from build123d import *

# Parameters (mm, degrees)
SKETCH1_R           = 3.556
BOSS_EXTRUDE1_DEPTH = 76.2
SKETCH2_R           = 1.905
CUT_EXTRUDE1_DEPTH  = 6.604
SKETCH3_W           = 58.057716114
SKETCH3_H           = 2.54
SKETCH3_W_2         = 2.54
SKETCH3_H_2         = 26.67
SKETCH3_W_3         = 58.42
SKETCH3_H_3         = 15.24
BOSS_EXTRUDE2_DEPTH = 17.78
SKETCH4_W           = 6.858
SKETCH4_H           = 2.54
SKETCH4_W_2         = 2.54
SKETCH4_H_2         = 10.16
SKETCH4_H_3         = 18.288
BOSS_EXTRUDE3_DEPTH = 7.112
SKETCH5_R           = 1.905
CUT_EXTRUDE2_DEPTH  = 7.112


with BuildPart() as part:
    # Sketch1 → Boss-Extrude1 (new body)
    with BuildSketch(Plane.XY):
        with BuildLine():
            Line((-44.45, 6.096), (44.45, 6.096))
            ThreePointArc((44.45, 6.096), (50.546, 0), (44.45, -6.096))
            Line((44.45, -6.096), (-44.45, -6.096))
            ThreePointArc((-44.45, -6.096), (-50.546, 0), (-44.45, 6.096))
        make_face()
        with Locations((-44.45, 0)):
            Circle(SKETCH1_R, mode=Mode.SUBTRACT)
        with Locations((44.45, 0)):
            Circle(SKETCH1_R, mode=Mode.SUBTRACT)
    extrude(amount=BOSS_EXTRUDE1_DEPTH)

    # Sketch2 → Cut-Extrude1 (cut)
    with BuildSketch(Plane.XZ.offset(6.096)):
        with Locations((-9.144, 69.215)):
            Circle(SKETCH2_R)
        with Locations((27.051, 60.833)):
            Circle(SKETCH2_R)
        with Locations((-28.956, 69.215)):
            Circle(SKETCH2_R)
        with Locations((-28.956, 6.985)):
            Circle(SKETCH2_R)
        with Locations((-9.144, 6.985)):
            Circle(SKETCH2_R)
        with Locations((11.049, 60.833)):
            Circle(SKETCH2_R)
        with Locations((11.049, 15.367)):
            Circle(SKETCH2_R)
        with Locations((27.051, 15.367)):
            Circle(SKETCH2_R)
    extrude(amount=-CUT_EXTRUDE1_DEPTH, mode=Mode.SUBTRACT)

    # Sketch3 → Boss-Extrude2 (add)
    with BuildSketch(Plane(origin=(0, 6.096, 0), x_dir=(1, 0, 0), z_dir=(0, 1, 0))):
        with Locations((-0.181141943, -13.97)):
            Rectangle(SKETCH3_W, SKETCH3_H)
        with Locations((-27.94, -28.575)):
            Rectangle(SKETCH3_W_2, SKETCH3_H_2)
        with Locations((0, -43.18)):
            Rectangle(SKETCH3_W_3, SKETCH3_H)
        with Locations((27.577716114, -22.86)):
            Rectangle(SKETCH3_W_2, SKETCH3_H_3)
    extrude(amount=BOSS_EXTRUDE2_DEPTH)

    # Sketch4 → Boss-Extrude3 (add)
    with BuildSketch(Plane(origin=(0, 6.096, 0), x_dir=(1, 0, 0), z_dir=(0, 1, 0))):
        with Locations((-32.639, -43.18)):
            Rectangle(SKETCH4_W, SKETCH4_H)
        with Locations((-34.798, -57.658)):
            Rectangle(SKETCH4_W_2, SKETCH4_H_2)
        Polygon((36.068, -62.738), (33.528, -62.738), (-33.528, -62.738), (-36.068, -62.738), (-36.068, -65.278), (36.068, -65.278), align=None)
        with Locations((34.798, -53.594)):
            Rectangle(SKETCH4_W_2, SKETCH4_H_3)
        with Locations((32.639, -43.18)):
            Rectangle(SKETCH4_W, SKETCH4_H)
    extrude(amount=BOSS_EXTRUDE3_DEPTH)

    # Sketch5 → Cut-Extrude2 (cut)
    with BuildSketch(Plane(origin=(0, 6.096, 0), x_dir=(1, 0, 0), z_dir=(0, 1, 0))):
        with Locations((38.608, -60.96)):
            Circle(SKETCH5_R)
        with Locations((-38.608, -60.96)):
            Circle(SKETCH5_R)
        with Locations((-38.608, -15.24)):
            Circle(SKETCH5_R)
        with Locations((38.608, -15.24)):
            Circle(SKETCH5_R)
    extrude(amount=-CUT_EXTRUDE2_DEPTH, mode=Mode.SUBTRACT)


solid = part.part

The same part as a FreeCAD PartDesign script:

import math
import FreeCAD as App
import Part
import Sketcher
from FreeCAD import Vector
Q = App.Units.Quantity


def add_polygon(sketch, points):
    """Adds a closed chain of lines whose ends are joined by coincident constraints."""
    first, n = sketch.GeometryCount, len(points)
    for a, b in zip(points, points[1:] + points[:1]):
        sketch.addGeometry(Part.LineSegment(App.Vector(*a, 0), App.Vector(*b, 0)), False)
    for i in range(n):
        sketch.addConstraint(Sketcher.Constraint("Coincident", first + i, 2, first + (i + 1) % n, 1))

doc = App.newDocument("Part")
params = doc.addObject("Spreadsheet::Sheet", "Params")
for row, (alias, value) in enumerate([
    ("sketch1_diameter", "0.28 in"),
    ("sketch1_radius", "0.24 in"),
    ("sketch1_width", "3.5 in"),
    ("pad1_length", "3 in"),
    ("sketch2_diameter", "0.15 in"),
    ("pocket1_length", "0.26 in"),
    ("sketch3_width", "2.3 in"),
    ("sketch3_width2", "2.2 in"),
    ("sketch3_width3", "0.1 in"),
    ("sketch3_height", "0.6 in"),
    ("sketch3_height2", "0.7 in"),
    ("pad2_length", "0.7 in"),
    ("sketch4_width", "0.1 in"),
    ("sketch4_height", "0.5 in"),
    ("sketch4_height2", "0.4 in"),
    ("sketch4_width2", "0.27 in"),
    ("sketch4_width3", "2.84 in"),
    ("pad3_length", "0.28 in"),
    ("sketch5_diameter", "0.15 in"),
    ("pocket2_length", "0.28 in"),
], start=1):
    params.set(f"A{row}", alias)
    params.set(f"B{row}", "=" + value)
    params.setAlias(f"B{row}", alias)

body = doc.addObject("PartDesign::Body", "Body")

sketch1 = doc.addObject("Sketcher::SketchObject", "Sketch")
body.addObject(sketch1)
sketch1.AttachmentSupport = (doc.XY_Plane, [""])
sketch1.MapMode = "FlatFace"
sketch1.addGeometry(Part.LineSegment(Vector(44.45, 6.096, 0), Vector(-44.45, 6.096, 0)), False)
sketch1.addGeometry(Part.ArcOfCircle(Part.Circle(Vector(-44.45, 0, 0), Vector(0, 0, 1), 6.096), math.radians(90), math.radians(270)), False)
sketch1.addGeometry(Part.LineSegment(Vector(-44.45, -6.096, 0), Vector(44.45, -6.096, 0)), False)
sketch1.addGeometry(Part.ArcOfCircle(Part.Circle(Vector(44.45, 0, 0), Vector(0, 0, 1), 6.096), math.radians(-90), math.radians(90)), False)
sketch1.addGeometry(Part.Circle(Vector(44.45, 0, 0), Vector(0, 0, 1), 3.556), False)
sketch1.addGeometry(Part.Circle(Vector(-44.45, 0, 0), Vector(0, 0, 1), 3.556), False)
sketch1.addConstraint(Sketcher.Constraint("Tangent", 0, 2, 1, 1))
sketch1.addConstraint(Sketcher.Constraint("Tangent", 1, 2, 2, 1))
sketch1.addConstraint(Sketcher.Constraint("Tangent", 2, 2, 3, 1))
sketch1.addConstraint(Sketcher.Constraint("Tangent", 3, 2, 0, 1))
sketch1.addConstraint(Sketcher.Constraint("Horizontal", 0))
sketch1.addConstraint(Sketcher.Constraint("Horizontal", 2))
sketch1.addConstraint(Sketcher.Constraint("Coincident", 4, 3, 3, 3))
sketch1.addConstraint(Sketcher.Constraint("Coincident", 5, 3, 1, 3))
sketch1.addConstraint(Sketcher.Constraint("Equal", 4, 5))
sketch1.addConstraint(Sketcher.Constraint("Symmetric", 1, 3, 3, 3, -1, 1))
sketch1.addConstraint(Sketcher.Constraint("Diameter", 4, Q("0.28 in")))
sketch1.addConstraint(Sketcher.Constraint("Radius", 1, Q("0.24 in")))
sketch1.addConstraint(Sketcher.Constraint("DistanceX", 0, 2, 0, 1, Q("3.5 in")))
sketch1.setExpression("Constraints[10]", "Params.sketch1_diameter")
sketch1.setExpression("Constraints[11]", "Params.sketch1_radius")
sketch1.setExpression("Constraints[12]", "Params.sketch1_width")
pad1 = doc.addObject("PartDesign::Pad", "Pad")
body.addObject(pad1)
pad1.Profile = sketch1
pad1.setExpression("Length", "Params.pad1_length")

sketch2 = doc.addObject("Sketcher::SketchObject", "Sketch001")
body.addObject(sketch2)
sketch2.AttachmentSupport = (doc.XZ_Plane, [""])
sketch2.MapMode = "FlatFace"
sketch2.AttachmentOffset = App.Placement(Vector(0, 0, 0.24 * 25.4), App.Rotation())
sketch2.addGeometry(Part.Circle(Vector(-9.144, 69.215, 0), Vector(0, 0, 1), 1.905), False)
sketch2.addGeometry(Part.Circle(Vector(27.051, 60.833, 0), Vector(0, 0, 1), 1.905), False)
sketch2.addGeometry(Part.Circle(Vector(-28.956, 69.215, 0), Vector(0, 0, 1), 1.905), False)
sketch2.addGeometry(Part.Circle(Vector(-28.956, 6.985, 0), Vector(0, 0, 1), 1.905), False)
sketch2.addGeometry(Part.Circle(Vector(-9.144, 6.985, 0), Vector(0, 0, 1), 1.905), False)
sketch2.addGeometry(Part.Circle(Vector(11.049, 60.833, 0), Vector(0, 0, 1), 1.905), False)
sketch2.addGeometry(Part.Circle(Vector(11.049, 15.367, 0), Vector(0, 0, 1), 1.905), False)
sketch2.addGeometry(Part.Circle(Vector(27.051, 15.367, 0), Vector(0, 0, 1), 1.905), False)
sketch2.addConstraint(Sketcher.Constraint("Equal", 0, 1))
sketch2.addConstraint(Sketcher.Constraint("Equal", 1, 2))
sketch2.addConstraint(Sketcher.Constraint("Equal", 2, 3))
sketch2.addConstraint(Sketcher.Constraint("Equal", 3, 4))
sketch2.addConstraint(Sketcher.Constraint("Equal", 4, 5))
sketch2.addConstraint(Sketcher.Constraint("Equal", 5, 6))
sketch2.addConstraint(Sketcher.Constraint("Equal", 6, 7))
sketch2.addConstraint(Sketcher.Constraint("Horizontal", 0, 3, 2, 3))
sketch2.addConstraint(Sketcher.Constraint("Horizontal", 3, 3, 4, 3))
sketch2.addConstraint(Sketcher.Constraint("Horizontal", 1, 3, 5, 3))
sketch2.addConstraint(Sketcher.Constraint("Horizontal", 6, 3, 7, 3))
sketch2.addConstraint(Sketcher.Constraint("Vertical", 2, 3, 3, 3))
sketch2.addConstraint(Sketcher.Constraint("Vertical", 0, 3, 4, 3))
sketch2.addConstraint(Sketcher.Constraint("Vertical", 5, 3, 6, 3))
sketch2.addConstraint(Sketcher.Constraint("Vertical", 1, 3, 7, 3))
sketch2.addConstraint(Sketcher.Constraint("Diameter", 0, Q("0.15 in")))
sketch2.addConstraint(Sketcher.Constraint("DistanceX", 0, 3, -1, 1, Q("0.36 in")))
sketch2.addConstraint(Sketcher.Constraint("DistanceX", 2, 3, -1, 1, Q("1.14 in")))
sketch2.addConstraint(Sketcher.Constraint("DistanceY", 1, 3, 0, 3, Q("0.33 in")))
sketch2.addConstraint(Sketcher.Constraint("DistanceY", 3, 3, 2, 3, Q("2.45 in")))
sketch2.addConstraint(Sketcher.Constraint("DistanceX", 5, 3, 1, 3, Q("0.63 in")))
sketch2.addConstraint(Sketcher.Constraint("DistanceY", 4, 3, 6, 3, Q("0.33 in")))
sketch2.addConstraint(Sketcher.Constraint("DistanceY", -1, 1, 0, 3, Q("2.725 in")))
sketch2.addConstraint(Sketcher.Constraint("DistanceX", -1, 1, 1, 3, Q("1.065 in")))
sketch2.setExpression("Constraints[15]", "Params.sketch2_diameter")
pocket1 = doc.addObject("PartDesign::Pocket", "Pocket")
body.addObject(pocket1)
pocket1.Profile = sketch2
pocket1.setExpression("Length", "Params.pocket1_length")

sketch3 = doc.addObject("Sketcher::SketchObject", "Sketch002")
body.addObject(sketch3)
sketch3.AttachmentSupport = (doc.XZ_Plane, [""])
sketch3.MapMode = "FlatFace"
sketch3.AttachmentOffset = App.Placement(Vector(0, 0, -0.24 * 25.4), App.Rotation())
add_polygon(sketch3, [(-29.21, 12.7), (-29.21, 44.45), (29.21, 44.45), (29.21, 41.91), (-26.67, 41.91), (-26.67, 15.24), (26.307716, 15.24), (26.307716, 30.48), (28.847716, 30.48), (28.847716, 12.7)])
sketch3.addConstraint(Sketcher.Constraint("Vertical", 0))
sketch3.addConstraint(Sketcher.Constraint("Horizontal", 1))
sketch3.addConstraint(Sketcher.Constraint("Vertical", 2))
sketch3.addConstraint(Sketcher.Constraint("Horizontal", 3))
sketch3.addConstraint(Sketcher.Constraint("Vertical", 4))
sketch3.addConstraint(Sketcher.Constraint("Horizontal", 5))
sketch3.addConstraint(Sketcher.Constraint("Vertical", 6))
sketch3.addConstraint(Sketcher.Constraint("Horizontal", 7))
sketch3.addConstraint(Sketcher.Constraint("Vertical", 8))
sketch3.addConstraint(Sketcher.Constraint("Horizontal", 9))
sketch3.addConstraint(Sketcher.Constraint("Equal", 7, 2))
sketch3.addConstraint(Sketcher.Constraint("DistanceX", 1, 1, 1, 2, Q("2.3 in")))
sketch3.addConstraint(Sketcher.Constraint("DistanceX", 3, 2, 3, 1, Q("2.2 in")))
sketch3.addConstraint(Sketcher.Constraint("DistanceX", 7, 1, 7, 2, Q("0.1 in")))
sketch3.addConstraint(Sketcher.Constraint("DistanceY", 6, 1, 6, 2, Q("0.6 in")))
sketch3.addConstraint(Sketcher.Constraint("DistanceY", 8, 2, 8, 1, Q("0.7 in")))
sketch3.addConstraint(Sketcher.Constraint("DistanceY", 0, 1, 0, 2, Q("1.25 in")))
sketch3.addConstraint(Sketcher.Constraint("DistanceY", -1, 1, 4, 2, Q("0.6 in")))
sketch3.addConstraint(Sketcher.Constraint("DistanceX", 0, 2, -1, 1, Q("1.15 in")))
sketch3.addConstraint(Sketcher.Constraint("DistanceX", 5, 1, 5, 2, Q("52.977716 mm")))
sketch3.setExpression("Constraints[21]", "Params.sketch3_width")
sketch3.setExpression("Constraints[22]", "Params.sketch3_width2")
sketch3.setExpression("Constraints[23]", "Params.sketch3_width3")
sketch3.setExpression("Constraints[24]", "Params.sketch3_height")
sketch3.setExpression("Constraints[25]", "Params.sketch3_height2")
pad2 = doc.addObject("PartDesign::Pad", "Pad001")
body.addObject(pad2)
pad2.Profile = sketch3
pad2.setExpression("Length", "Params.pad2_length")
pad2.Reversed = True

sketch4 = doc.addObject("Sketcher::SketchObject", "Sketch003")
body.addObject(sketch4)
sketch4.AttachmentSupport = (doc.XZ_Plane, [""])
sketch4.MapMode = "FlatFace"
sketch4.AttachmentOffset = App.Placement(Vector(0, 0, -0.24 * 25.4), App.Rotation())
add_polygon(sketch4, [(-36.068, 41.91), (-36.068, 44.45), (-29.21, 44.45), (-29.21, 41.91)])
add_polygon(sketch4, [(-36.068, 52.578), (-36.068, 65.278), (36.068, 65.278), (36.068, 41.91), (29.21, 41.91), (29.21, 44.45), (33.528, 44.45), (33.528, 62.738), (-33.528, 62.738), (-33.528, 52.578)])
sketch4.addConstraint(Sketcher.Constraint("Vertical", 0))
sketch4.addConstraint(Sketcher.Constraint("Horizontal", 1))
sketch4.addConstraint(Sketcher.Constraint("Vertical", 2))
sketch4.addConstraint(Sketcher.Constraint("Horizontal", 3))
sketch4.addConstraint(Sketcher.Constraint("Vertical", 4))
sketch4.addConstraint(Sketcher.Constraint("Horizontal", 5))
sketch4.addConstraint(Sketcher.Constraint("Vertical", 6))
sketch4.addConstraint(Sketcher.Constraint("Horizontal", 7))
sketch4.addConstraint(Sketcher.Constraint("Vertical", 8))
sketch4.addConstraint(Sketcher.Constraint("Horizontal", 9))
sketch4.addConstraint(Sketcher.Constraint("Vertical", 10))
sketch4.addConstraint(Sketcher.Constraint("Horizontal", 11))
sketch4.addConstraint(Sketcher.Constraint("Vertical", 12))
sketch4.addConstraint(Sketcher.Constraint("Horizontal", 13))
sketch4.addConstraint(Sketcher.Constraint("Symmetric", 3, 2, 6, 2, -2))
sketch4.addConstraint(Sketcher.Constraint("Symmetric", 1, 2, 8, 2, -2))
sketch4.addConstraint(Sketcher.Constraint("Vertical", 3, 2, 4, 2))
sketch4.addConstraint(Sketcher.Constraint("Equal", 13, 0))
sketch4.addConstraint(Sketcher.Constraint("DistanceX", 13, 2, 13, 1, Q("0.1 in")))
sketch4.addConstraint(Sketcher.Constraint("DistanceY", 4, 1, 4, 2, Q("0.5 in")))
sketch4.addConstraint(Sketcher.Constraint("DistanceY", 12, 2, 12, 1, Q("0.4 in")))
sketch4.addConstraint(Sketcher.Constraint("DistanceX", 1, 1, 1, 2, Q("0.27 in")))
sketch4.addConstraint(Sketcher.Constraint("DistanceX", 5, 1, 5, 2, Q("2.84 in")))
sketch4.addConstraint(Sketcher.Constraint("DistanceX", 9, 1, 9, 2, Q("0.17 in")))
sketch4.addConstraint(Sketcher.Constraint("DistanceY", 6, 2, 6, 1, Q("0.92 in")))
sketch4.addConstraint(Sketcher.Constraint("DistanceY", -1, 1, 0, 2, Q("1.75 in")))
sketch4.setExpression("Constraints[32]", "Params.sketch4_width")
sketch4.setExpression("Constraints[33]", "Params.sketch4_height")
sketch4.setExpression("Constraints[34]", "Params.sketch4_height2")
sketch4.setExpression("Constraints[35]", "Params.sketch4_width2")
sketch4.setExpression("Constraints[36]", "Params.sketch4_width3")
pad3 = doc.addObject("PartDesign::Pad", "Pad002")
body.addObject(pad3)
pad3.Profile = sketch4
pad3.setExpression("Length", "Params.pad3_length")
pad3.Reversed = True

sketch5 = doc.addObject("Sketcher::SketchObject", "Sketch004")
body.addObject(sketch5)
sketch5.AttachmentSupport = (doc.XZ_Plane, [""])
sketch5.MapMode = "FlatFace"
sketch5.AttachmentOffset = App.Placement(Vector(0, 0, -0.24 * 25.4), App.Rotation())
sketch5.addGeometry(Part.Circle(Vector(38.608, 60.96, 0), Vector(0, 0, 1), 1.905), False)
sketch5.addGeometry(Part.Circle(Vector(-38.608, 60.96, 0), Vector(0, 0, 1), 1.905), False)
sketch5.addGeometry(Part.Circle(Vector(-38.608, 15.24, 0), Vector(0, 0, 1), 1.905), False)
sketch5.addGeometry(Part.Circle(Vector(38.608, 15.24, 0), Vector(0, 0, 1), 1.905), False)
sketch5.addConstraint(Sketcher.Constraint("Equal", 0, 1))
sketch5.addConstraint(Sketcher.Constraint("Equal", 1, 2))
sketch5.addConstraint(Sketcher.Constraint("Equal", 2, 3))
sketch5.addConstraint(Sketcher.Constraint("Symmetric", 0, 3, 1, 3, -2))
sketch5.addConstraint(Sketcher.Constraint("Symmetric", 2, 3, 3, 3, -2))
sketch5.addConstraint(Sketcher.Constraint("Vertical", 1, 3, 2, 3))
sketch5.addConstraint(Sketcher.Constraint("Diameter", 0, Q("0.15 in")))
sketch5.addConstraint(Sketcher.Constraint("DistanceY", -1, 1, 0, 3, Q("2.4 in")))
sketch5.addConstraint(Sketcher.Constraint("DistanceY", -1, 1, 2, 3, Q("0.6 in")))
sketch5.addConstraint(Sketcher.Constraint("DistanceX", -1, 1, 0, 3, Q("1.52 in")))
sketch5.setExpression("Constraints[6]", "Params.sketch5_diameter")
pocket2 = doc.addObject("PartDesign::Pocket", "Pocket001")
body.addObject(pocket2)
pocket2.Profile = sketch5
pocket2.setExpression("Length", "Params.pocket2_length")
pocket2.Reversed = True

doc.recompute()
